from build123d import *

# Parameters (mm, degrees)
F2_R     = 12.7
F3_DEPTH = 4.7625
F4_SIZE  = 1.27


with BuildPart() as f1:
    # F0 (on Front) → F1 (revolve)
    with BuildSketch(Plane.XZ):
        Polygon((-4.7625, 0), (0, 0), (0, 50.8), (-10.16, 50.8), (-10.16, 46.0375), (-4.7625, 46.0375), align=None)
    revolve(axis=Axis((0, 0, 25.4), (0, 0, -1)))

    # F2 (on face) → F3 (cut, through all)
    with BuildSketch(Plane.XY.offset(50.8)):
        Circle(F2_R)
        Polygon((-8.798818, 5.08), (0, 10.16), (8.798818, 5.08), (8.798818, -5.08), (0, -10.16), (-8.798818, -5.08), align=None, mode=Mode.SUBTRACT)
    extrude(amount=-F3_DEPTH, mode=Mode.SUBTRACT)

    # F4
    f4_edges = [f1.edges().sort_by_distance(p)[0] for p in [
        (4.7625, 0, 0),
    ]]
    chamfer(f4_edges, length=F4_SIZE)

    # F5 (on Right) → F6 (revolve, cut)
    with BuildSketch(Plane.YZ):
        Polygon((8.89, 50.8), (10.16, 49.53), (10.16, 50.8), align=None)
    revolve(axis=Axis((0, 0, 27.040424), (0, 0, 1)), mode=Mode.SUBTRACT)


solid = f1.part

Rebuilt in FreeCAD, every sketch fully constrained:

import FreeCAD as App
import Part
import Sketcher
from FreeCAD import Vector
Q = App.Units.Quantity


def edges_at(feature, points):
    """Names of the edges that pass closest to the given points."""
    edges = feature.Shape.Edges
    near = lambda p: min(range(len(edges)), key=lambda i: edges[i].distToShape(Part.Vertex(*p))[0])
    return sorted({f"Edge{near(p) + 1}" for p in points})

doc = App.newDocument("Part")
body = doc.addObject("PartDesign::Body", "Body")

# Sketch on XZ plane
sketch1 = body.newObject("Sketcher::SketchObject", "Sketch")
sketch1.AttachmentSupport = (doc.getObject("XZ_Plane"), [""])
sketch1.MapMode = "FlatFace"
sketch1.addGeometry(Part.LineSegment(Vector(-4.8, 0, 0), Vector(0, 0, 0)), False)
sketch1.addGeometry(Part.LineSegment(Vector(0, 0, 0), Vector(0, 50.8, 0)), False)
sketch1.addGeometry(Part.LineSegment(Vector(0, 50.8, 0), Vector(-10.2, 50.8, 0)), False)
sketch1.addGeometry(Part.LineSegment(Vector(-10.2, 50.8, 0), Vector(-10.2, 46, 0)), False)
sketch1.addGeometry(Part.LineSegment(Vector(-10.2, 46, 0), Vector(-4.8, 46, 0)), False)
sketch1.addGeometry(Part.LineSegment(Vector(-4.8, 46, 0), Vector(-4.8, 0, 0)), False)
sketch1.addConstraint(Sketcher.Constraint("Coincident", 0, 2, 1, 1))
sketch1.addConstraint(Sketcher.Constraint("Coincident", 1, 2, 2, 1))
sketch1.addConstraint(Sketcher.Constraint("Coincident", 2, 2, 3, 1))
sketch1.addConstraint(Sketcher.Constraint("Coincident", 3, 2, 4, 1))
sketch1.addConstraint(Sketcher.Constraint("Coincident", 4, 2, 5, 1))
sketch1.addConstraint(Sketcher.Constraint("Coincident", 5, 2, 0, 1))
sketch1.addConstraint(Sketcher.Constraint("Horizontal", 0))
sketch1.addConstraint(Sketcher.Constraint("Vertical", 1))
sketch1.addConstraint(Sketcher.Constraint("Horizontal", 2))
sketch1.addConstraint(Sketcher.Constraint("Vertical", 3))
sketch1.addConstraint(Sketcher.Constraint("Horizontal", 4))
sketch1.addConstraint(Sketcher.Constraint("Vertical", 5))
sketch1.addConstraint(Sketcher.Constraint("Coincident", 0, 2, -1, 1))
sketch1.addConstraint(Sketcher.Constraint("Equal", 0, 3))
sketch1.addConstraint(Sketcher.Constraint("DistanceY", 1, 1, 1, 2, Q("2 in")))
sketch1.addConstraint(Sketcher.Constraint("DistanceX", 2, 2, 2, 1, Q("0.4 in")))
sketch1.addConstraint(Sketcher.Constraint("DistanceX", 0, 1, 0, 2, Q("0.1875 in")))
revolution = body.newObject("PartDesign::Revolution", "Revolution")
revolution.Profile = sketch1
revolution.ReferenceAxis = (sketch1, ["V_Axis"])
revolution.Angle = 360

# Sketch on XY plane
sketch2 = body.newObject("Sketcher::SketchObject", "Sketch001")
sketch2.AttachmentSupport = (doc.getObject("XY_Plane"), [""])
sketch2.MapMode = "FlatFace"
sketch2.AttachmentOffset = App.Placement(Vector(0, 0, 2 * 25.4), App.Rotation())
sketch2.addGeometry(Part.Circle(Vector(0, 0, 0), Vector(0, 0, 1), 13), False)
sketch2.addGeometry(Part.LineSegment(Vector(-9, -5, 0), Vector(-9, 5, 0)), False)
sketch2.addGeometry(Part.LineSegment(Vector(-9, 5, 0), Vector(0, 10, 0)), False)
sketch2.addGeometry(Part.LineSegment(Vector(0, 10, 0), Vector(9, 5, 0)), False)
sketch2.addGeometry(Part.LineSegment(Vector(9, 5, 0), Vector(9, -5, 0)), False)
sketch2.addGeometry(Part.LineSegment(Vector(9, -5, 0), Vector(0, -10, 0)), False)
sketch2.addGeometry(Part.LineSegment(Vector(0, -10, 0), Vector(-9, -5, 0)), False)
sketch2.addConstraint(Sketcher.Constraint("Coincident", 1, 2, 2, 1))
sketch2.addConstraint(Sketcher.Constraint("Coincident", 2, 2, 3, 1))
sketch2.addConstraint(Sketcher.Constraint("Coincident", 3, 2, 4, 1))
sketch2.addConstraint(Sketcher.Constraint("Coincident", 4, 2, 5, 1))
sketch2.addConstraint(Sketcher.Constraint("Coincident", 5, 2, 6, 1))
sketch2.addConstraint(Sketcher.Constraint("Coincident", 6, 2, 1, 1))
sketch2.addConstraint(Sketcher.Constraint("Vertical", 1))
sketch2.addConstraint(Sketcher.Constraint("Vertical", 4))
sketch2.addConstraint(Sketcher.Constraint("Coincident", 0, 3, -1, 1))
sketch2.addConstraint(Sketcher.Constraint("Symmetric", 1, 2, 4, 2, -1, 1))
sketch2.addConstraint(Sketcher.Constraint("Symmetric", 2, 2, 5, 2, -1, 1))
sketch2.addConstraint(Sketcher.Constraint("PointOnObject", 2, 2, -2))
sketch2.addConstraint(Sketcher.Constraint("Parallel", 3, 6))
sketch2.addConstraint(Sketcher.Constraint("Horizontal", 1, 2, 3, 2))
sketch2.addConstraint(Sketcher.Constraint("Diameter", 0, Q("1 in")))
sketch2.addConstraint(Sketcher.Constraint("DistanceY", 1, 1, 1, 2, Q("0.4 in")))
sketch2.addConstraint(Sketcher.Constraint("Angle", 2, Q("30 deg")))
sketch2.addConstraint(Sketcher.Constraint("Distance", 2, Q("0.4 in")))
pocket1 = body.newObject("PartDesign::Pocket", "Pocket")
pocket1.Profile = sketch2
pocket1.Type = "ThroughAll"
doc.recompute()

chamfer = body.newObject("PartDesign::Chamfer", "Chamfer")
chamfer.Base = (pocket1, edges_at(pocket1, [(4.763, 0, 0)]))
chamfer.Size = Q("0.05 in")

# Sketch on YZ plane
sketch3 = body.newObject("Sketcher::SketchObject", "Sketch002")
sketch3.AttachmentSupport = (doc.getObject("YZ_Plane"), [""])
sketch3.MapMode = "FlatFace"
sketch3.addGeometry(Part.LineSegment(Vector(8.9, 50.8, 0), Vector(10.2, 49.5, 0)), False)
sketch3.addGeometry(Part.LineSegment(Vector(10.2, 49.5, 0), Vector(10.2, 50.8, 0)), False)
sketch3.addGeometry(Part.LineSegment(Vector(10.2, 50.8, 0), Vector(8.9, 50.8, 0)), False)
sketch3.addConstraint(Sketcher.Constraint("Coincident", 0, 2, 1, 1))
sketch3.addConstraint(Sketcher.Constraint("Coincident", 1, 2, 2, 1))
sketch3.addConstraint(Sketcher.Constraint("Coincident", 2, 2, 0, 1))
sketch3.addConstraint(Sketcher.Constraint("Vertical", 1))
sketch3.addConstraint(Sketcher.Constraint("Horizontal", 2))
sketch3.addConstraint(Sketcher.Constraint("Equal", 2, 1))
sketch3.addConstraint(Sketcher.Constraint("DistanceY", -1, 1, 1, 2, Q("2 in")))
sketch3.addConstraint(Sketcher.Constraint("DistanceX", 2, 2, 2, 1, Q("0.05 in")))
sketch3.addConstraint(Sketcher.Constraint("DistanceX", -1, 1, 0, 2, Q("0.4 in")))
groove = body.newObject("PartDesign::Groove", "Groove")
groove.Profile = sketch3
groove.ReferenceAxis = (sketch3, ["V_Axis"])
groove.Angle = 360

doc.recompute()
